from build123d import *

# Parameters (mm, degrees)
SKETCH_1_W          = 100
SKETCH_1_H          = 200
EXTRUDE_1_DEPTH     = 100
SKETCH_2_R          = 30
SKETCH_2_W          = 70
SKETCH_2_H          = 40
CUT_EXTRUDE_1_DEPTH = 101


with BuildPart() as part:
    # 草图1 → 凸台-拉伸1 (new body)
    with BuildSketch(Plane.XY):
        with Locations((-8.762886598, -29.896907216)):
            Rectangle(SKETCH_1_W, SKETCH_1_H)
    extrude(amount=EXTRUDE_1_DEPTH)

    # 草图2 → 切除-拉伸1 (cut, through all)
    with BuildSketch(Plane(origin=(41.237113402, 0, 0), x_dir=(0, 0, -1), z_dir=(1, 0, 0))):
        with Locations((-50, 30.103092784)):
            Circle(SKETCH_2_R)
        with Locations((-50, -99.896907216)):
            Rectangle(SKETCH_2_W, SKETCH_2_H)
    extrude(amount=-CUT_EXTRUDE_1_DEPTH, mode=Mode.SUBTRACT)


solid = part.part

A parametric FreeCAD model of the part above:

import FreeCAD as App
import Part
import Sketcher

V = App.Vector
Q = App.Units.Quantity


def add_polygon(sketch, points):
    """Adds a closed chain of lines whose ends are joined by coincident constraints."""
    first, n = sketch.GeometryCount, len(points)
    for a, b in zip(points, points[1:] + points[:1]):
        sketch.addGeometry(Part.LineSegment(App.Vector(*a, 0), App.Vector(*b, 0)), False)
    for i in range(n):
        sketch.addConstraint(Sketcher.Constraint("Coincident", first + i, 2, first + (i + 1) % n, 1))

doc = App.newDocument("Part")
params = doc.addObject("Spreadsheet::Sheet", "Params")
for row, (alias, value) in enumerate([
    ("sketch1_width", "100 mm"),
    ("sketch1_height", "200 mm"),
    ("pad1_length", "100 mm"),
    ("sketch2_diameter", "60 mm"),
    ("sketch2_width", "40 mm"),
    ("sketch2_height", "70 mm"),
], start=1):
    params.set(f"A{row}", alias)
    params.set(f"B{row}", "=" + value)
    params.setAlias(f"B{row}", alias)

body = doc.addObject("PartDesign::Body", "Body")

# Sketch on XY plane
sketch1 = body.newObject("Sketcher::SketchObject", "Sketch")
sketch1.AttachmentSupport = (doc.getObject("XY_Plane"), [""])
sketch1.MapMode = "FlatFace"
add_polygon(sketch1, [(-59, 70), (-59, -130), (41, -130), (41, 70)])  # lines 0-3
sketch1.addConstraint([
    Sketcher.Constraint("Vertical", 0),
    Sketcher.Constraint("Horizontal", 1),
    Sketcher.Constraint("Vertical", 2),
    Sketcher.Constraint("Horizontal", 3),
    Sketcher.Constraint("DistanceX", 1, 1, 1, 2, Q("100 mm")),
    Sketcher.Constraint("DistanceY", 0, 2, 0, 1, Q("200 mm")),
    Sketcher.Constraint("DistanceX", 0, 2, -1, 1, Q("58.762887 mm")),
    Sketcher.Constraint("DistanceY", 0, 2, -1, 1, Q("129.896907 mm")),
])
sketch1.setExpression("Constraints[8]", "Params.sketch1_width")
sketch1.setExpression("Constraints[9]", "Params.sketch1_height")
pad1 = body.newObject("PartDesign::Pad", "Pad")
pad1.Profile = sketch1
pad1.setExpression("Length", "Params.pad1_length")

# Sketch on YZ plane
sketch2 = body.newObject("Sketcher::SketchObject", "Sketch001")
sketch2.AttachmentSupport = (doc.getObject("YZ_Plane"), [""])
sketch2.MapMode = "FlatFace"
sketch2.AttachmentOffset = App.Placement(V(0, 0, 41.237113), App.Rotation())
sketch2.addGeometry(Part.Circle(V(30, 50, 0), V(0, 0, 1), 30), False)  # 0
add_polygon(sketch2, [(-80, 85), (-120, 85), (-120, 15), (-80, 15)])  # lines 1-4
sketch2.addConstraint([
    Sketcher.Constraint("Horizontal", 1),
    Sketcher.Constraint("Vertical", 2),
    Sketcher.Constraint("Horizontal", 3),
    Sketcher.Constraint("Vertical", 4),
    Sketcher.Constraint("Diameter", 0, Q("60 mm")),
    Sketcher.Constraint("DistanceX", 1, 2, 1, 1, Q("40 mm")),
    Sketcher.Constraint("DistanceY", 2, 2, 2, 1, Q("70 mm")),
    Sketcher.Constraint("DistanceY", -1, 1, 0, 3, Q("50 mm")),
    Sketcher.Constraint("DistanceY", -1, 1, 1, 2, Q("85 mm")),
    Sketcher.Constraint("DistanceX", 1, 2, 0, 3, Q("150 mm")),
    Sketcher.Constraint("DistanceX", -1, 1, 0, 3, Q("30.103093 mm")),
])
sketch2.setExpression("Constraints[8]", "Params.sketch2_diameter")
sketch2.setExpression("Constraints[9]", "Params.sketch2_width")
sketch2.setExpression("Constraints[10]", "Params.sketch2_height")
pocket1 = body.newObject("PartDesign::Pocket", "Pocket")
pocket1.Profile = sketch2
pocket1.Type = "ThroughAll"

doc.recompute()
